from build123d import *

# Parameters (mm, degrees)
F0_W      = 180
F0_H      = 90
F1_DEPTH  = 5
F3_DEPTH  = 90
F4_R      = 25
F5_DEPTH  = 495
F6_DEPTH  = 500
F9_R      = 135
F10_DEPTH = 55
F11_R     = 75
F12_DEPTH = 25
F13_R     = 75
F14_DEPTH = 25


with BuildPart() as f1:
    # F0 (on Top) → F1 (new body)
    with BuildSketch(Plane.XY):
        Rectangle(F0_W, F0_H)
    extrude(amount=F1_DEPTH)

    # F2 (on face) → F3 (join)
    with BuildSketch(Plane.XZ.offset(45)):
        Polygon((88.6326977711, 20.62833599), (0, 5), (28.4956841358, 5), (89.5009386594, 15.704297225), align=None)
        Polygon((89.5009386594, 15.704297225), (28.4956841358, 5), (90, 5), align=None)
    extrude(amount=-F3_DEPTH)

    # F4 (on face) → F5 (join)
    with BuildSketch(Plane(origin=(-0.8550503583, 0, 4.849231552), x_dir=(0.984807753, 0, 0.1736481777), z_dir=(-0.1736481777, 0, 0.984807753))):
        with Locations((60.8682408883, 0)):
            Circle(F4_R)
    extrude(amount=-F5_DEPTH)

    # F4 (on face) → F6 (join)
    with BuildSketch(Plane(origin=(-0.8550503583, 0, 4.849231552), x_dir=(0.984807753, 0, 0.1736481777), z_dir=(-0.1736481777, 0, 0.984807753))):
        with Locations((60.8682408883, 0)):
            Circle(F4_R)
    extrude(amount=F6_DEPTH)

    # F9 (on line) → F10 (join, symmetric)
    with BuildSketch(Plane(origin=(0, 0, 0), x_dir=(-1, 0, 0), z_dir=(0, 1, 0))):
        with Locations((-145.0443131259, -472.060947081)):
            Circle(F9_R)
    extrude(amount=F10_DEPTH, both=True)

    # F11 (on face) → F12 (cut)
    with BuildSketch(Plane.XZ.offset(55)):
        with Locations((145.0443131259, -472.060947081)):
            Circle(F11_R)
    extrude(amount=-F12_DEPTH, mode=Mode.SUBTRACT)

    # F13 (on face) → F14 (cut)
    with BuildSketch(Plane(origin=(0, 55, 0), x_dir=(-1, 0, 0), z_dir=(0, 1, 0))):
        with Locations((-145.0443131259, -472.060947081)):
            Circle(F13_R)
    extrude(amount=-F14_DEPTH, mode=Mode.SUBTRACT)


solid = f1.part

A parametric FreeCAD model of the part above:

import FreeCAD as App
import Part
import Sketcher
Q = App.Units.Quantity

doc = App.newDocument("Part")
body = doc.addObject("PartDesign::Body", "Body")

# Sketch on XY plane
sketch1 = doc.addObject("Sketcher::SketchObject", "Sketch")
body.addObject(sketch1)
sketch1.AttachmentSupport = (doc.XY_Plane, [""])
sketch1.MapMode = "FlatFace"
sketch1.addGeometry(Part.LineSegment(App.Vector(-90, 45, 0), App.Vector(-90, -45, 0)), False)
sketch1.addGeometry(Part.LineSegment(App.Vector(-90, -45, 0), App.Vector(90, -45, 0)), False)
sketch1.addGeometry(Part.LineSegment(App.Vector(90, -45, 0), App.Vector(90, 45, 0)), False)
sketch1.addGeometry(Part.LineSegment(App.Vector(90, 45, 0), App.Vector(-90, 45, 0)), False)
sketch1.addConstraint(Sketcher.Constraint("Coincident", 0, 2, 1, 1))
sketch1.addConstraint(Sketcher.Constraint("Coincident", 1, 2, 2, 1))
sketch1.addConstraint(Sketcher.Constraint("Coincident", 2, 2, 3, 1))
sketch1.addConstraint(Sketcher.Constraint("Coincident", 3, 2, 0, 1))
sketch1.addConstraint(Sketcher.Constraint("Vertical", 0))
sketch1.addConstraint(Sketcher.Constraint("Horizontal", 1))
sketch1.addConstraint(Sketcher.Constraint("Vertical", 2))
sketch1.addConstraint(Sketcher.Constraint("Horizontal", 3))
sketch1.addConstraint(Sketcher.Constraint("Symmetric", 0, 2, 2, 2, -1, 1))
sketch1.addConstraint(Sketcher.Constraint("DistanceX", 1, 1, 1, 2, Q("180 mm")))
sketch1.addConstraint(Sketcher.Constraint("DistanceY", 0, 2, 0, 1, Q("90 mm")))
pad1 = doc.addObject("PartDesign::Pad", "Pad")
body.addObject(pad1)
pad1.Profile = sketch1
pad1.Length = 5

# Sketch on XZ plane
sketch2 = doc.addObject("Sketcher::SketchObject", "Sketch001")
body.addObject(sketch2)
sketch2.AttachmentSupport = (doc.XZ_Plane, [""])
sketch2.MapMode = "FlatFace"
sketch2.AttachmentOffset = App.Placement(App.Vector(0, 0, 45), App.Rotation())
sketch2.addGeometry(Part.LineSegment(App.Vector(88.6, 20.6, 0), App.Vector(0, 5, 0)), False)
sketch2.addGeometry(Part.LineSegment(App.Vector(0, 5, 0), App.Vector(90, 5, 0)), False)
sketch2.addGeometry(Part.LineSegment(App.Vector(90, 5, 0), App.Vector(89.5, 15.7, 0)), False)
sketch2.addGeometry(Part.LineSegment(App.Vector(89.5, 15.7, 0), App.Vector(88.6, 20.6, 0)), False)
sketch2.addConstraint(Sketcher.Constraint("Coincident", 0, 2, 1, 1))
sketch2.addConstraint(Sketcher.Constraint("Coincident", 1, 2, 2, 1))
sketch2.addConstraint(Sketcher.Constraint("Coincident", 2, 2, 3, 1))
sketch2.addConstraint(Sketcher.Constraint("Coincident", 3, 2, 0, 1))
sketch2.addConstraint(Sketcher.Constraint("Horizontal", 1))
sketch2.addConstraint(Sketcher.Constraint("PointOnObject", 0, 2, -2))
sketch2.addConstraint(Sketcher.Constraint("Perpendicular", 0, 3))
sketch2.addConstraint(Sketcher.Constraint("DistanceX", 1, 1, 1, 2, Q("90 mm")))
sketch2.addConstraint(Sketcher.Constraint("Angle", 0, Q("-170 deg")))
sketch2.addConstraint(Sketcher.Constraint("Distance", 0, Q("90 mm")))
sketch2.addConstraint(Sketcher.Constraint("Distance", 3, Q("5 mm")))
sketch2.addConstraint(Sketcher.Constraint("DistanceY", -1, 1, 0, 2, Q("5 mm")))
pad2 = doc.addObject("PartDesign::Pad", "Pad001")
body.addObject(pad2)
pad2.Profile = sketch2
pad2.Length = 90
pad2.Reversed = True

# Sketch on an angled plane
sketch3 = doc.addObject("Sketcher::SketchObject", "Sketch002")
body.addObject(sketch3)
sketch3.Placement = App.Placement(App.Vector(-0.85505, 0, 4.849232), App.Rotation(App.Vector(0.984807753, 0, 0.173648178), App.Vector(0, 1, 0), App.Vector(-0.173648178, 0, 0.984807753), "ZXY"))
sketch3.addGeometry(Part.Circle(App.Vector(61, 0, 0), App.Vector(0, 0, 1), 25), False)
sketch3.addConstraint(Sketcher.Constraint("PointOnObject", 0, 3, -1))
sketch3.addConstraint(Sketcher.Constraint("Diameter", 0, Q("50 mm")))
sketch3.addConstraint(Sketcher.Constraint("DistanceX", -1, 1, 0, 3, Q("60.868241 mm")))
pad3 = doc.addObject("PartDesign::Pad", "Pad002")
body.addObject(pad3)
pad3.Profile = sketch3
pad3.Length = 495
pad3.Reversed = True

# Sketch on an angled plane
sketch4 = doc.addObject("Sketcher::SketchObject", "Sketch003")
body.addObject(sketch4)
sketch4.Placement = App.Placement(App.Vector(-0.85505, 0, 4.849232), App.Rotation(App.Vector(0.984807753, 0, 0.173648178), App.Vector(0, 1, 0), App.Vector(-0.173648178, 0, 0.984807753), "ZXY"))
sketch4.addGeometry(Part.Circle(App.Vector(61, 0, 0), App.Vector(0, 0, 1), 25), False)
sketch4.addConstraint(Sketcher.Constraint("PointOnObject", 0, 3, -1))
sketch4.addConstraint(Sketcher.Constraint("Diameter", 0, Q("50 mm")))
sketch4.addConstraint(Sketcher.Constraint("DistanceX", -1, 1, 0, 3, Q("60.868241 mm")))
pad4 = doc.addObject("PartDesign::Pad", "Pad003")
body.addObject(pad4)
pad4.Profile = sketch4
pad4.Length = 500

# Sketch on XZ plane
sketch5 = doc.addObject("Sketcher::SketchObject", "Sketch004")
body.addObject(sketch5)
sketch5.AttachmentSupport = (doc.XZ_Plane, [""])
sketch5.MapMode = "FlatFace"
sketch5.addGeometry(Part.Circle(App.Vector(145, -472, 0), App.Vector(0, 0, 1), 135), False)
sketch5.addConstraint(Sketcher.Constraint("Diameter", 0, Q("270 mm")))
sketch5.addConstraint(Sketcher.Constraint("DistanceX", -1, 1, 0, 3, Q("145.044313 mm")))
sketch5.addConstraint(Sketcher.Constraint("DistanceY", 0, 3, -1, 1, Q("472.060947 mm")))
pad5 = doc.addObject("PartDesign::Pad", "Pad004")
body.addObject(pad5)
pad5.Profile = sketch5
pad5.Length = 110
pad5.Midplane = True

# Sketch on XZ plane
sketch6 = doc.addObject("Sketcher::SketchObject", "Sketch005")
body.addObject(sketch6)
sketch6.AttachmentSupport = (doc.XZ_Plane, [""])
sketch6.MapMode = "FlatFace"
sketch6.AttachmentOffset = App.Placement(App.Vector(0, 0, 55), App.Rotation())
sketch6.addGeometry(Part.Circle(App.Vector(145, -472, 0), App.Vector(0, 0, 1), 75), False)
sketch6.addConstraint(Sketcher.Constraint("Diameter", 0, Q("150 mm")))
sketch6.addConstraint(Sketcher.Constraint("DistanceX", -1, 1, 0, 3, Q("145.044313 mm")))
sketch6.addConstraint(Sketcher.Constraint("DistanceY", 0, 3, -1, 1, Q("472.060947 mm")))
pocket1 = doc.addObject("PartDesign::Pocket", "Pocket")
body.addObject(pocket1)
pocket1.Profile = sketch6
pocket1.Length = 25

# Sketch on XZ plane
sketch7 = doc.addObject("Sketcher::SketchObject", "Sketch006")
body.addObject(sketch7)
sketch7.AttachmentSupport = (doc.XZ_Plane, [""])
sketch7.MapMode = "FlatFace"
sketch7.AttachmentOffset = App.Placement(App.Vector(0, 0, -55), App.Rotation())
sketch7.addGeometry(Part.Circle(App.Vector(145, -472, 0), App.Vector(0, 0, 1), 75), False)
sketch7.addConstraint(Sketcher.Constraint("Diameter", 0, Q("150 mm")))
sketch7.addConstraint(Sketcher.Constraint("DistanceX", -1, 1, 0, 3, Q("145.044313 mm")))
sketch7.addConstraint(Sketcher.Constraint("DistanceY", 0, 3, -1, 1, Q("472.060947 mm")))
pocket2 = doc.addObject("PartDesign::Pocket", "Pocket001")
body.addObject(pocket2)
pocket2.Profile = sketch7
pocket2.Length = 25
pocket2.Reversed = True

doc.recompute()
